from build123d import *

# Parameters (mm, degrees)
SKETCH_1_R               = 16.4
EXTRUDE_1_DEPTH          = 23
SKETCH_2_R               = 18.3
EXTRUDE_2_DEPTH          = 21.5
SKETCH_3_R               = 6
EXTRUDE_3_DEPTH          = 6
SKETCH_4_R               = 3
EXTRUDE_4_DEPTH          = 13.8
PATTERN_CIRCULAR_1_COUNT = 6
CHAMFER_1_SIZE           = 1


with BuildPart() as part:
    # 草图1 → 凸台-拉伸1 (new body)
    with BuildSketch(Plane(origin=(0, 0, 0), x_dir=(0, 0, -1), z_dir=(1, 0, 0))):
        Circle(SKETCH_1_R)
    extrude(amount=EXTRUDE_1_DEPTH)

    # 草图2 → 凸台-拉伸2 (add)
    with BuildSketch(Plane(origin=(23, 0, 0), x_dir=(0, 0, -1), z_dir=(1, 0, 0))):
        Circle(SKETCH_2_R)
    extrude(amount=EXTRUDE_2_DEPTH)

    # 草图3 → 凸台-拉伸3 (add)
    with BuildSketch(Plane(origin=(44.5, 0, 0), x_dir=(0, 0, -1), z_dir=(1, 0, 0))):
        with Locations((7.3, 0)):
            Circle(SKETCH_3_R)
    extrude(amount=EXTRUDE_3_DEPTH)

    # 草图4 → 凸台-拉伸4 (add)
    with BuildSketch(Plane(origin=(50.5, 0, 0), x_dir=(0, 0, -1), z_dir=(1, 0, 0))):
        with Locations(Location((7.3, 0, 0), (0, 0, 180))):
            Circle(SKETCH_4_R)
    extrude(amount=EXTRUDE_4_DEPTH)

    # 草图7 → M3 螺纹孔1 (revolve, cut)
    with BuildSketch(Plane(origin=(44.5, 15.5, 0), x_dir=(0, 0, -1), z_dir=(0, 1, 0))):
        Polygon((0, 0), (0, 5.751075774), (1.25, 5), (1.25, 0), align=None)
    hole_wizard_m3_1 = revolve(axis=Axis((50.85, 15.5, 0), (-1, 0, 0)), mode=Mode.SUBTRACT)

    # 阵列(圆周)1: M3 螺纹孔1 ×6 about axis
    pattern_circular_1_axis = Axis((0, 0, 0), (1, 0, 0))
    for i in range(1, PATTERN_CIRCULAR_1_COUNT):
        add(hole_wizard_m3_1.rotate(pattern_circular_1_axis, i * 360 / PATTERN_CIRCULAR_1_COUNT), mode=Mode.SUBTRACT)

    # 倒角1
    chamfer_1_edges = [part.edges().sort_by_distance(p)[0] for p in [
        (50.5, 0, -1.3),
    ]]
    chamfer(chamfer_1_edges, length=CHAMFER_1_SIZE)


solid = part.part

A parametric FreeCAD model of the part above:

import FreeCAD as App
import Part
import Sketcher
from FreeCAD import Vector
Q = App.Units.Quantity


def edges_at(feature, points):
    """Names of the edges that pass closest to the given points."""
    edges = feature.Shape.Edges
    near = lambda p: min(range(len(edges)), key=lambda i: edges[i].distToShape(Part.Vertex(*p))[0])
    return sorted({f"Edge{near(p) + 1}" for p in points})

doc = App.newDocument("Part")
body = doc.addObject("PartDesign::Body", "Body")

# Sketch on YZ plane
sketch1 = doc.addObject("Sketcher::SketchObject", "Sketch")
body.addObject(sketch1)
sketch1.AttachmentSupport = (doc.YZ_Plane, [""])
sketch1.MapMode = "FlatFace"
sketch1.addGeometry(Part.Circle(Vector(0, 0, 0), Vector(0, 0, 1), 16.4), False)
sketch1.addConstraint([
    Sketcher.Constraint("Coincident", 0, 3, -1, 1),
    Sketcher.Constraint("Diameter", 0, Q("32.8 mm")),
])
pad1 = doc.addObject("PartDesign::Pad", "Pad")
body.addObject(pad1)
pad1.Profile = sketch1
pad1.Length = 23

# Sketch on YZ plane
sketch2 = doc.addObject("Sketcher::SketchObject", "Sketch001")
body.addObject(sketch2)
sketch2.AttachmentSupport = (doc.YZ_Plane, [""])
sketch2.MapMode = "FlatFace"
sketch2.AttachmentOffset = App.Placement(Vector(0, 0, 23), App.Rotation())
sketch2.addGeometry(Part.Circle(Vector(0, 0, 0), Vector(0, 0, 1), 18.3), False)
sketch2.addConstraint([
    Sketcher.Constraint("Coincident", 0, 3, -1, 1),
    Sketcher.Constraint("Diameter", 0, Q("36.6 mm")),
])
pad2 = doc.addObject("PartDesign::Pad", "Pad001")
body.addObject(pad2)
pad2.Profile = sketch2
pad2.Length = 21.5

# Sketch on YZ plane
sketch3 = doc.addObject("Sketcher::SketchObject", "Sketch002")
body.addObject(sketch3)
sketch3.AttachmentSupport = (doc.YZ_Plane, [""])
sketch3.MapMode = "FlatFace"
sketch3.AttachmentOffset = App.Placement(Vector(0, 0, 44.5), App.Rotation())
sketch3.addGeometry(Part.Circle(Vector(0, -7.3, 0), Vector(0, 0, 1), 6), False)
sketch3.addConstraint([
    Sketcher.Constraint("PointOnObject", 0, 3, -2),
    Sketcher.Constraint("Diameter", 0, Q("12 mm")),
    Sketcher.Constraint("DistanceY", 0, 3, -1, 1, Q("7.3 mm")),
])
pad3 = doc.addObject("PartDesign::Pad", "Pad002")
body.addObject(pad3)
pad3.Profile = sketch3
pad3.Length = 6

# Sketch on YZ plane
sketch4 = doc.addObject("Sketcher::SketchObject", "Sketch003")
body.addObject(sketch4)
sketch4.AttachmentSupport = (doc.YZ_Plane, [""])
sketch4.MapMode = "FlatFace"
sketch4.AttachmentOffset = App.Placement(Vector(0, 0, 50.5), App.Rotation())
sketch4.addGeometry(Part.Circle(Vector(0, -7.3, 0), Vector(0, 0, 1), 3), False)
sketch4.addConstraint([
    Sketcher.Constraint("PointOnObject", 0, 3, -2),
    Sketcher.Constraint("Diameter", 0, Q("6 mm")),
    Sketcher.Constraint("DistanceY", 0, 3, -1, 1, Q("7.3 mm")),
])
pad4 = doc.addObject("PartDesign::Pad", "Pad003")
body.addObject(pad4)
pad4.Profile = sketch4
pad4.Length = 13.8

# Sketch on XZ plane
sketch5 = doc.addObject("Sketcher::SketchObject", "Sketch004")
body.addObject(sketch5)
sketch5.AttachmentSupport = (doc.XZ_Plane, [""])
sketch5.MapMode = "FlatFace"
sketch5.AttachmentOffset = App.Placement(Vector(0, 0, -15.5), App.Rotation())
sketch5.addGeometry([
    Part.LineSegment(Vector(38.748924, 0, 0), Vector(44.5, 0, 0)),
    Part.LineSegment(Vector(44.5, 0, 0), Vector(44.5, -1.25, 0)),
    Part.LineSegment(Vector(44.5, -1.25, 0), Vector(39.5, -1.25, 0)),
    Part.LineSegment(Vector(39.5, -1.25, 0), Vector(38.748924, 0, 0)),
], False)
sketch5.addConstraint([
    Sketcher.Constraint("Coincident", 0, 2, 1, 1),
    Sketcher.Constraint("Coincident", 1, 2, 2, 1),
    Sketcher.Constraint("Coincident", 2, 2, 3, 1),
    Sketcher.Constraint("Coincident", 3, 2, 0, 1),
    Sketcher.Constraint("Horizontal", 0),
    Sketcher.Constraint("Vertical", 1),
    Sketcher.Constraint("Horizontal", 2),
    Sketcher.Constraint("PointOnObject", 0, 2, -1),
    Sketcher.Constraint("DistanceX", 2, 2, 2, 1, Q("5 mm")),
    Sketcher.Constraint("Angle", 3, Q("121 deg")),
    Sketcher.Constraint("DistanceY", 1, 2, 1, 1, Q("1.25 mm")),
    Sketcher.Constraint("DistanceX", -1, 1, 0, 2, Q("44.5 mm")),
])
groove = doc.addObject("PartDesign::Groove", "Groove")
body.addObject(groove)
groove.Profile = sketch5
groove.ReferenceAxis = (sketch5, ["H_Axis"])
groove.Angle = 360
doc.recompute()

polarpattern = doc.addObject("PartDesign::PolarPattern", "PolarPattern")
body.addObject(polarpattern)
polarpattern.Originals = [groove]
polarpattern.Axis = (doc.X_Axis, [""])
polarpattern.Angle = 360
polarpattern.Occurrences = 6
body.Tip = polarpattern
doc.recompute()

chamfer = doc.addObject("PartDesign::Chamfer", "Chamfer")
body.addObject(chamfer)
chamfer.Base = (polarpattern, edges_at(polarpattern, [(50.5, 0, -1.3)]))
chamfer.Size = 1

doc.recompute()
